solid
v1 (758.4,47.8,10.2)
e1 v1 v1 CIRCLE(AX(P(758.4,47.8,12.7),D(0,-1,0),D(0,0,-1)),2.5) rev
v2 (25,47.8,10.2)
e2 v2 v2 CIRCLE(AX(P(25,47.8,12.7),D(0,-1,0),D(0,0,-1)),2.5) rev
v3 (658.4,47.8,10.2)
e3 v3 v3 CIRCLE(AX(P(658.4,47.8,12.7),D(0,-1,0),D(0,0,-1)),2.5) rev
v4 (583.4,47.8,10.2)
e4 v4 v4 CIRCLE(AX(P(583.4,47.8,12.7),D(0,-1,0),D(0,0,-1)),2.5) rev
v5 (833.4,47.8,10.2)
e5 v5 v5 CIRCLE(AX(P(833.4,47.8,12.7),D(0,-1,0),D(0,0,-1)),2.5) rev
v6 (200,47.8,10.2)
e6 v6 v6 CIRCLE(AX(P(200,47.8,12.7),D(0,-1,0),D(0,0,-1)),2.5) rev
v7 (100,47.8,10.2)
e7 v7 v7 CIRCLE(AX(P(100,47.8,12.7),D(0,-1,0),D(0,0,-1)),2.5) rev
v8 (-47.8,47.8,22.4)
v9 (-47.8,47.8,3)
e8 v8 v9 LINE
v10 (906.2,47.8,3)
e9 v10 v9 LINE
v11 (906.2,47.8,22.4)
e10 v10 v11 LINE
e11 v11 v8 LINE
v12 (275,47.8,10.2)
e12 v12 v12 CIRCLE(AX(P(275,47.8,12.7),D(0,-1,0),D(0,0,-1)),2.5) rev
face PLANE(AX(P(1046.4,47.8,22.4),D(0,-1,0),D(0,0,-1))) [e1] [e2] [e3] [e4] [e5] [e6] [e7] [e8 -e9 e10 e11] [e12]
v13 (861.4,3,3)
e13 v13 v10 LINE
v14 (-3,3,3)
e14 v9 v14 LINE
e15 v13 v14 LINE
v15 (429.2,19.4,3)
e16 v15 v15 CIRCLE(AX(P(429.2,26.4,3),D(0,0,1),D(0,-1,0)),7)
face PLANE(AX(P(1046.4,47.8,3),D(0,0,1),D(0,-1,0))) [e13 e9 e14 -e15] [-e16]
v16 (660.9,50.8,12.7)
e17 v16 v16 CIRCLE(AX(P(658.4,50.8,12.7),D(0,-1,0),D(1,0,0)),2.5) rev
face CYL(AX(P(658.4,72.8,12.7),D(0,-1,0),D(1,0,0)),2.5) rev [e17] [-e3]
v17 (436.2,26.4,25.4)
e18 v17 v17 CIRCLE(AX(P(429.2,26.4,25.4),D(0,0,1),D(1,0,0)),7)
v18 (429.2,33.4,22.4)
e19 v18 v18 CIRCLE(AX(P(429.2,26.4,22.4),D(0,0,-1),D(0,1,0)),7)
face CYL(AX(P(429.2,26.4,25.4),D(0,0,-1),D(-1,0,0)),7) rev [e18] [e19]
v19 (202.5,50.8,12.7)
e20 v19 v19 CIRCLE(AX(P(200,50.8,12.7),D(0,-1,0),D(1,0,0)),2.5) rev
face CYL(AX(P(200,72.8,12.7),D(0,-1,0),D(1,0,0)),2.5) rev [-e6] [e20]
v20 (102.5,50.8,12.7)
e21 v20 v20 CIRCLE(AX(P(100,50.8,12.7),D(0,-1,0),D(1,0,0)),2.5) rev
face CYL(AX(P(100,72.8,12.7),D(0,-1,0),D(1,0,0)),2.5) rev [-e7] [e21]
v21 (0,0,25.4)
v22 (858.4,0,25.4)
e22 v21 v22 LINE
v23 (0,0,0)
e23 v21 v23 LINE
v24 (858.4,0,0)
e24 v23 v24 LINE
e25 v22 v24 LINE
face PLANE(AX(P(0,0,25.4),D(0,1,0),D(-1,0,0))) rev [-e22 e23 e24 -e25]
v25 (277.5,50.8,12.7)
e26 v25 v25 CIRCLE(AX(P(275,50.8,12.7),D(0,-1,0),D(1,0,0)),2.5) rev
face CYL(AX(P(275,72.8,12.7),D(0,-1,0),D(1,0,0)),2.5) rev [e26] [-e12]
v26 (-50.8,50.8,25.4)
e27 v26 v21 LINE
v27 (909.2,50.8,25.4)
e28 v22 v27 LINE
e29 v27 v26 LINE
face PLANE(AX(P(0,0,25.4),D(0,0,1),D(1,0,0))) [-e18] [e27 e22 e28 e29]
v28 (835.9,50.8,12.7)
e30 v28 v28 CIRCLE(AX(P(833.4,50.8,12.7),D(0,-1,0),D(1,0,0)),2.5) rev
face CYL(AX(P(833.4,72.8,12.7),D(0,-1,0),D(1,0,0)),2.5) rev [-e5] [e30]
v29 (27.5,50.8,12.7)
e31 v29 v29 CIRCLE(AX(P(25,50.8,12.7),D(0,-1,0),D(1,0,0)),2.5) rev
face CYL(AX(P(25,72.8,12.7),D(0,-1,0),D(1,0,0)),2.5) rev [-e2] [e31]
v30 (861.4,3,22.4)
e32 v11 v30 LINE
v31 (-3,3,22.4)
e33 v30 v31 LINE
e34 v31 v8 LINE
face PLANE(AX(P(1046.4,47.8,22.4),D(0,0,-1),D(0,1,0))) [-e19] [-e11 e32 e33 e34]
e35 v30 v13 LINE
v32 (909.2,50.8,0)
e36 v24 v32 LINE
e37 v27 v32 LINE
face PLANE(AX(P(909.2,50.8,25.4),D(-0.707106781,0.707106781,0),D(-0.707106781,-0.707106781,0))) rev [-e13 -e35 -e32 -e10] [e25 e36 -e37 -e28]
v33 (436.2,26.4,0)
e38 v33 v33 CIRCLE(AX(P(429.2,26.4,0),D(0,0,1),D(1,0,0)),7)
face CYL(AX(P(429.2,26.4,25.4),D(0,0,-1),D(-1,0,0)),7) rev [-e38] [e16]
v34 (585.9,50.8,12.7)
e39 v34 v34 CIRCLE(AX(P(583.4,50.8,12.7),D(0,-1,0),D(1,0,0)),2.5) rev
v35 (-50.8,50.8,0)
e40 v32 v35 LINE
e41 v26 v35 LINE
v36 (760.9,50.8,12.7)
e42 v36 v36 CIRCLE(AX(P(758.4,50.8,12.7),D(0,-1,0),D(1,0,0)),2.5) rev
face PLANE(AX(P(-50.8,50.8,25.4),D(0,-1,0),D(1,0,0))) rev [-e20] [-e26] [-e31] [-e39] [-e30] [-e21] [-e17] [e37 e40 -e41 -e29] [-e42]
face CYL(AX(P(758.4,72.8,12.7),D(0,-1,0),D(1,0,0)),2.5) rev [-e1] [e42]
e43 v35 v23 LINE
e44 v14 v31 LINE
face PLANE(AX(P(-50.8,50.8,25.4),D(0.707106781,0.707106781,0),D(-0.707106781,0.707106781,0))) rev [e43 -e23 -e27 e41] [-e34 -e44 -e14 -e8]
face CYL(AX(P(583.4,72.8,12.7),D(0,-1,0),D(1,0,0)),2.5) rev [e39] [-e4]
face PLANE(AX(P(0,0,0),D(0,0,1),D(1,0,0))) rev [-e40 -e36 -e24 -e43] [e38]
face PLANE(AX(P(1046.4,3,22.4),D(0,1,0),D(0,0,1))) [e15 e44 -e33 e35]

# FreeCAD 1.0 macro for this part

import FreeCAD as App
import Part
import Sketcher

V = App.Vector
Q = App.Units.Quantity

doc = App.newDocument("Part")
body = doc.addObject("PartDesign::Body", "Body")

sketch1 = doc.addObject("Sketcher::SketchObject", "Sketch")
body.addObject(sketch1)
sketch1.AttachmentSupport = (doc.XY_Plane, [""])
sketch1.MapMode = "FlatFace"
sketch1.addGeometry(Part.LineSegment(V(-51, 51, 0), V(0, 0, 0)), False)
sketch1.addGeometry(Part.LineSegment(V(0, 0, 0), V(858, 0, 0)), False)
sketch1.addGeometry(Part.LineSegment(V(858, 0, 0), V(909, 51, 0)), False)
sketch1.addGeometry(Part.LineSegment(V(909, 51, 0), V(-51, 51, 0)), False)
sketch1.addGeometry(Part.Circle(V(429, 26, 0), V(0, 0, 1), 7), False)
sketch1.addConstraint(Sketcher.Constraint("Coincident", 0, 2, 1, 1))
sketch1.addConstraint(Sketcher.Constraint("Coincident", 1, 2, 2, 1))
sketch1.addConstraint(Sketcher.Constraint("Coincident", 2, 2, 3, 1))
sketch1.addConstraint(Sketcher.Constraint("Coincident", 3, 2, 0, 1))
sketch1.addConstraint(Sketcher.Constraint("Horizontal", 1))
sketch1.addConstraint(Sketcher.Constraint("Horizontal", 3))
sketch1.addConstraint(Sketcher.Constraint("Coincident", 0, 2, -1, 1))
sketch1.addConstraint(Sketcher.Constraint("Perpendicular", 0, 2))
sketch1.addConstraint(Sketcher.Constraint("Equal", 0, 2))
sketch1.addConstraint(Sketcher.Constraint("Diameter", 4, Q("14 mm")))
sketch1.addConstraint(Sketcher.Constraint("DistanceX", 3, 2, 3, 1, Q("960 mm")))
sketch1.addConstraint(Sketcher.Constraint("DistanceX", 1, 1, 1, 2, Q("858.4 mm")))
sketch1.addConstraint(Sketcher.Constraint("DistanceX", 4, 3, 2, 2, Q("480 mm")))
sketch1.addConstraint(Sketcher.Constraint("DistanceY", -1, 1, 4, 3, Q("26.4 mm")))
pad1 = doc.addObject("PartDesign::Pad", "Pad")
body.addObject(pad1)
pad1.Profile = sketch1
pad1.Length = 25.4

sketch2 = doc.addObject("Sketcher::SketchObject", "Sketch001")
body.addObject(sketch2)
sketch2.AttachmentSupport = (doc.YZ_Plane, [""])
sketch2.MapMode = "FlatFace"
sketch2.addGeometry(Part.LineSegment(V(48, 22, 0), V(3, 22, 0)), False)
sketch2.addGeometry(Part.LineSegment(V(3, 22, 0), V(3, 3, 0)), False)
sketch2.addGeometry(Part.LineSegment(V(3, 3, 0), V(48, 3, 0)), False)
sketch2.addGeometry(Part.LineSegment(V(48, 3, 0), V(48, 22, 0)), False)
sketch2.addConstraint(Sketcher.Constraint("Coincident", 0, 2, 1, 1))
sketch2.addConstraint(Sketcher.Constraint("Coincident", 1, 2, 2, 1))
sketch2.addConstraint(Sketcher.Constraint("Coincident", 2, 2, 3, 1))
sketch2.addConstraint(Sketcher.Constraint("Coincident", 3, 2, 0, 1))
sketch2.addConstraint(Sketcher.Constraint("Horizontal", 0))
sketch2.addConstraint(Sketcher.Constraint("Vertical", 1))
sketch2.addConstraint(Sketcher.Constraint("Horizontal", 2))
sketch2.addConstraint(Sketcher.Constraint("Vertical", 3))
sketch2.addConstraint(Sketcher.Constraint("DistanceX", 0, 2, 0, 1, Q("44.8 mm")))
sketch2.addConstraint(Sketcher.Constraint("DistanceY", 1, 2, 1, 1, Q("19.4 mm")))
sketch2.addConstraint(Sketcher.Constraint("DistanceX", -1, 1, 0, 2, Q("3 mm")))
sketch2.addConstraint(Sketcher.Constraint("DistanceY", -1, 1, 1, 2, Q("3 mm")))
pocket1 = doc.addObject("PartDesign::Pocket", "Pocket")
body.addObject(pocket1)
pocket1.Profile = sketch2
pocket1.Type = "ThroughAll"
pocket1.Midplane = True

sketch3 = doc.addObject("Sketcher::SketchObject", "Sketch002")
body.addObject(sketch3)
sketch3.AttachmentSupport = (doc.XZ_Plane, [""])
sketch3.MapMode = "FlatFace"
sketch3.AttachmentOffset = App.Placement(V(0, 0, -50.8), App.Rotation())
sketch3.addGeometry(Part.Circle(V(25, 12.7, 0), V(0, 0, 1), 2.5), False)
sketch3.addGeometry(Part.Circle(V(100, 12.7, 0), V(0, 0, 1), 2.5), False)
sketch3.addGeometry(Part.Circle(V(200, 12.7, 0), V(0, 0, 1), 2.5), False)
sketch3.addGeometry(Part.Circle(V(275, 12.7, 0), V(0, 0, 1), 2.5), False)
sketch3.addGeometry(Part.Circle(V(833.4, 12.7, 0), V(0, 0, 1), 2.5), False)
sketch3.addGeometry(Part.Circle(V(758.4, 12.7, 0), V(0, 0, 1), 2.5), False)
sketch3.addGeometry(Part.Circle(V(658.4, 12.7, 0), V(0, 0, 1), 2.5), False)
sketch3.addGeometry(Part.Circle(V(583.4, 12.7, 0), V(0, 0, 1), 2.5), False)
sketch3.addConstraint(Sketcher.Constraint("Equal", 0, 1))
sketch3.addConstraint(Sketcher.Constraint("Equal", 1, 2))
sketch3.addConstraint(Sketcher.Constraint("Equal", 2, 3))
sketch3.addConstraint(Sketcher.Constraint("Equal", 3, 4))
sketch3.addConstraint(Sketcher.Constraint("Equal", 4, 5))
sketch3.addConstraint(Sketcher.Constraint("Equal", 5, 6))
sketch3.addConstraint(Sketcher.Constraint("Equal", 6, 7))
sketch3.addConstraint(Sketcher.Constraint("Horizontal", 0, 3, 1, 3))
sketch3.addConstraint(Sketcher.Constraint("Horizontal", 1, 3, 2, 3))
sketch3.addConstraint(Sketcher.Constraint("Horizontal", 2, 3, 3, 3))
sketch3.addConstraint(Sketcher.Constraint("Horizontal", 3, 3, 4, 3))
sketch3.addConstraint(Sketcher.Constraint("Horizontal", 4, 3, 5, 3))
sketch3.addConstraint(Sketcher.Constraint("Horizontal", 5, 3, 6, 3))
sketch3.addConstraint(Sketcher.Constraint("Horizontal", 6, 3, 7, 3))
sketch3.addConstraint(Sketcher.Constraint("Diameter", 0, Q("5 mm")))
sketch3.addConstraint(Sketcher.Constraint("DistanceX", -1, 1, 0, 3, Q("25 mm")))
sketch3.addConstraint(Sketcher.Constraint("DistanceX", -1, 1, 1, 3, Q("100 mm")))
sketch3.addConstraint(Sketcher.Constraint("DistanceX", -1, 1, 2, 3, Q("200 mm")))
sketch3.addConstraint(Sketcher.Constraint("DistanceX", -1, 1, 3, 3, Q("275 mm")))
sketch3.addConstraint(Sketcher.Constraint("DistanceX", 5, 3, 4, 3, Q("75 mm")))
sketch3.addConstraint(Sketcher.Constraint("DistanceX", 6, 3, 5, 3, Q("100 mm")))
sketch3.addConstraint(Sketcher.Constraint("DistanceX", 7, 3, 6, 3, Q("75 mm")))
sketch3.addConstraint(Sketcher.Constraint("DistanceY", -1, 1, 0, 3, Q("12.7 mm")))
sketch3.addConstraint(Sketcher.Constraint("DistanceX", -1, 1, 4, 3, Q("833.4 mm")))
pocket2 = doc.addObject("PartDesign::Pocket", "Pocket001")
body.addObject(pocket2)
pocket2.Profile = sketch3
pocket2.Type = "TwoLengths"
pocket2.Length = 22
pocket2.Length2 = 22

doc.recompute()
